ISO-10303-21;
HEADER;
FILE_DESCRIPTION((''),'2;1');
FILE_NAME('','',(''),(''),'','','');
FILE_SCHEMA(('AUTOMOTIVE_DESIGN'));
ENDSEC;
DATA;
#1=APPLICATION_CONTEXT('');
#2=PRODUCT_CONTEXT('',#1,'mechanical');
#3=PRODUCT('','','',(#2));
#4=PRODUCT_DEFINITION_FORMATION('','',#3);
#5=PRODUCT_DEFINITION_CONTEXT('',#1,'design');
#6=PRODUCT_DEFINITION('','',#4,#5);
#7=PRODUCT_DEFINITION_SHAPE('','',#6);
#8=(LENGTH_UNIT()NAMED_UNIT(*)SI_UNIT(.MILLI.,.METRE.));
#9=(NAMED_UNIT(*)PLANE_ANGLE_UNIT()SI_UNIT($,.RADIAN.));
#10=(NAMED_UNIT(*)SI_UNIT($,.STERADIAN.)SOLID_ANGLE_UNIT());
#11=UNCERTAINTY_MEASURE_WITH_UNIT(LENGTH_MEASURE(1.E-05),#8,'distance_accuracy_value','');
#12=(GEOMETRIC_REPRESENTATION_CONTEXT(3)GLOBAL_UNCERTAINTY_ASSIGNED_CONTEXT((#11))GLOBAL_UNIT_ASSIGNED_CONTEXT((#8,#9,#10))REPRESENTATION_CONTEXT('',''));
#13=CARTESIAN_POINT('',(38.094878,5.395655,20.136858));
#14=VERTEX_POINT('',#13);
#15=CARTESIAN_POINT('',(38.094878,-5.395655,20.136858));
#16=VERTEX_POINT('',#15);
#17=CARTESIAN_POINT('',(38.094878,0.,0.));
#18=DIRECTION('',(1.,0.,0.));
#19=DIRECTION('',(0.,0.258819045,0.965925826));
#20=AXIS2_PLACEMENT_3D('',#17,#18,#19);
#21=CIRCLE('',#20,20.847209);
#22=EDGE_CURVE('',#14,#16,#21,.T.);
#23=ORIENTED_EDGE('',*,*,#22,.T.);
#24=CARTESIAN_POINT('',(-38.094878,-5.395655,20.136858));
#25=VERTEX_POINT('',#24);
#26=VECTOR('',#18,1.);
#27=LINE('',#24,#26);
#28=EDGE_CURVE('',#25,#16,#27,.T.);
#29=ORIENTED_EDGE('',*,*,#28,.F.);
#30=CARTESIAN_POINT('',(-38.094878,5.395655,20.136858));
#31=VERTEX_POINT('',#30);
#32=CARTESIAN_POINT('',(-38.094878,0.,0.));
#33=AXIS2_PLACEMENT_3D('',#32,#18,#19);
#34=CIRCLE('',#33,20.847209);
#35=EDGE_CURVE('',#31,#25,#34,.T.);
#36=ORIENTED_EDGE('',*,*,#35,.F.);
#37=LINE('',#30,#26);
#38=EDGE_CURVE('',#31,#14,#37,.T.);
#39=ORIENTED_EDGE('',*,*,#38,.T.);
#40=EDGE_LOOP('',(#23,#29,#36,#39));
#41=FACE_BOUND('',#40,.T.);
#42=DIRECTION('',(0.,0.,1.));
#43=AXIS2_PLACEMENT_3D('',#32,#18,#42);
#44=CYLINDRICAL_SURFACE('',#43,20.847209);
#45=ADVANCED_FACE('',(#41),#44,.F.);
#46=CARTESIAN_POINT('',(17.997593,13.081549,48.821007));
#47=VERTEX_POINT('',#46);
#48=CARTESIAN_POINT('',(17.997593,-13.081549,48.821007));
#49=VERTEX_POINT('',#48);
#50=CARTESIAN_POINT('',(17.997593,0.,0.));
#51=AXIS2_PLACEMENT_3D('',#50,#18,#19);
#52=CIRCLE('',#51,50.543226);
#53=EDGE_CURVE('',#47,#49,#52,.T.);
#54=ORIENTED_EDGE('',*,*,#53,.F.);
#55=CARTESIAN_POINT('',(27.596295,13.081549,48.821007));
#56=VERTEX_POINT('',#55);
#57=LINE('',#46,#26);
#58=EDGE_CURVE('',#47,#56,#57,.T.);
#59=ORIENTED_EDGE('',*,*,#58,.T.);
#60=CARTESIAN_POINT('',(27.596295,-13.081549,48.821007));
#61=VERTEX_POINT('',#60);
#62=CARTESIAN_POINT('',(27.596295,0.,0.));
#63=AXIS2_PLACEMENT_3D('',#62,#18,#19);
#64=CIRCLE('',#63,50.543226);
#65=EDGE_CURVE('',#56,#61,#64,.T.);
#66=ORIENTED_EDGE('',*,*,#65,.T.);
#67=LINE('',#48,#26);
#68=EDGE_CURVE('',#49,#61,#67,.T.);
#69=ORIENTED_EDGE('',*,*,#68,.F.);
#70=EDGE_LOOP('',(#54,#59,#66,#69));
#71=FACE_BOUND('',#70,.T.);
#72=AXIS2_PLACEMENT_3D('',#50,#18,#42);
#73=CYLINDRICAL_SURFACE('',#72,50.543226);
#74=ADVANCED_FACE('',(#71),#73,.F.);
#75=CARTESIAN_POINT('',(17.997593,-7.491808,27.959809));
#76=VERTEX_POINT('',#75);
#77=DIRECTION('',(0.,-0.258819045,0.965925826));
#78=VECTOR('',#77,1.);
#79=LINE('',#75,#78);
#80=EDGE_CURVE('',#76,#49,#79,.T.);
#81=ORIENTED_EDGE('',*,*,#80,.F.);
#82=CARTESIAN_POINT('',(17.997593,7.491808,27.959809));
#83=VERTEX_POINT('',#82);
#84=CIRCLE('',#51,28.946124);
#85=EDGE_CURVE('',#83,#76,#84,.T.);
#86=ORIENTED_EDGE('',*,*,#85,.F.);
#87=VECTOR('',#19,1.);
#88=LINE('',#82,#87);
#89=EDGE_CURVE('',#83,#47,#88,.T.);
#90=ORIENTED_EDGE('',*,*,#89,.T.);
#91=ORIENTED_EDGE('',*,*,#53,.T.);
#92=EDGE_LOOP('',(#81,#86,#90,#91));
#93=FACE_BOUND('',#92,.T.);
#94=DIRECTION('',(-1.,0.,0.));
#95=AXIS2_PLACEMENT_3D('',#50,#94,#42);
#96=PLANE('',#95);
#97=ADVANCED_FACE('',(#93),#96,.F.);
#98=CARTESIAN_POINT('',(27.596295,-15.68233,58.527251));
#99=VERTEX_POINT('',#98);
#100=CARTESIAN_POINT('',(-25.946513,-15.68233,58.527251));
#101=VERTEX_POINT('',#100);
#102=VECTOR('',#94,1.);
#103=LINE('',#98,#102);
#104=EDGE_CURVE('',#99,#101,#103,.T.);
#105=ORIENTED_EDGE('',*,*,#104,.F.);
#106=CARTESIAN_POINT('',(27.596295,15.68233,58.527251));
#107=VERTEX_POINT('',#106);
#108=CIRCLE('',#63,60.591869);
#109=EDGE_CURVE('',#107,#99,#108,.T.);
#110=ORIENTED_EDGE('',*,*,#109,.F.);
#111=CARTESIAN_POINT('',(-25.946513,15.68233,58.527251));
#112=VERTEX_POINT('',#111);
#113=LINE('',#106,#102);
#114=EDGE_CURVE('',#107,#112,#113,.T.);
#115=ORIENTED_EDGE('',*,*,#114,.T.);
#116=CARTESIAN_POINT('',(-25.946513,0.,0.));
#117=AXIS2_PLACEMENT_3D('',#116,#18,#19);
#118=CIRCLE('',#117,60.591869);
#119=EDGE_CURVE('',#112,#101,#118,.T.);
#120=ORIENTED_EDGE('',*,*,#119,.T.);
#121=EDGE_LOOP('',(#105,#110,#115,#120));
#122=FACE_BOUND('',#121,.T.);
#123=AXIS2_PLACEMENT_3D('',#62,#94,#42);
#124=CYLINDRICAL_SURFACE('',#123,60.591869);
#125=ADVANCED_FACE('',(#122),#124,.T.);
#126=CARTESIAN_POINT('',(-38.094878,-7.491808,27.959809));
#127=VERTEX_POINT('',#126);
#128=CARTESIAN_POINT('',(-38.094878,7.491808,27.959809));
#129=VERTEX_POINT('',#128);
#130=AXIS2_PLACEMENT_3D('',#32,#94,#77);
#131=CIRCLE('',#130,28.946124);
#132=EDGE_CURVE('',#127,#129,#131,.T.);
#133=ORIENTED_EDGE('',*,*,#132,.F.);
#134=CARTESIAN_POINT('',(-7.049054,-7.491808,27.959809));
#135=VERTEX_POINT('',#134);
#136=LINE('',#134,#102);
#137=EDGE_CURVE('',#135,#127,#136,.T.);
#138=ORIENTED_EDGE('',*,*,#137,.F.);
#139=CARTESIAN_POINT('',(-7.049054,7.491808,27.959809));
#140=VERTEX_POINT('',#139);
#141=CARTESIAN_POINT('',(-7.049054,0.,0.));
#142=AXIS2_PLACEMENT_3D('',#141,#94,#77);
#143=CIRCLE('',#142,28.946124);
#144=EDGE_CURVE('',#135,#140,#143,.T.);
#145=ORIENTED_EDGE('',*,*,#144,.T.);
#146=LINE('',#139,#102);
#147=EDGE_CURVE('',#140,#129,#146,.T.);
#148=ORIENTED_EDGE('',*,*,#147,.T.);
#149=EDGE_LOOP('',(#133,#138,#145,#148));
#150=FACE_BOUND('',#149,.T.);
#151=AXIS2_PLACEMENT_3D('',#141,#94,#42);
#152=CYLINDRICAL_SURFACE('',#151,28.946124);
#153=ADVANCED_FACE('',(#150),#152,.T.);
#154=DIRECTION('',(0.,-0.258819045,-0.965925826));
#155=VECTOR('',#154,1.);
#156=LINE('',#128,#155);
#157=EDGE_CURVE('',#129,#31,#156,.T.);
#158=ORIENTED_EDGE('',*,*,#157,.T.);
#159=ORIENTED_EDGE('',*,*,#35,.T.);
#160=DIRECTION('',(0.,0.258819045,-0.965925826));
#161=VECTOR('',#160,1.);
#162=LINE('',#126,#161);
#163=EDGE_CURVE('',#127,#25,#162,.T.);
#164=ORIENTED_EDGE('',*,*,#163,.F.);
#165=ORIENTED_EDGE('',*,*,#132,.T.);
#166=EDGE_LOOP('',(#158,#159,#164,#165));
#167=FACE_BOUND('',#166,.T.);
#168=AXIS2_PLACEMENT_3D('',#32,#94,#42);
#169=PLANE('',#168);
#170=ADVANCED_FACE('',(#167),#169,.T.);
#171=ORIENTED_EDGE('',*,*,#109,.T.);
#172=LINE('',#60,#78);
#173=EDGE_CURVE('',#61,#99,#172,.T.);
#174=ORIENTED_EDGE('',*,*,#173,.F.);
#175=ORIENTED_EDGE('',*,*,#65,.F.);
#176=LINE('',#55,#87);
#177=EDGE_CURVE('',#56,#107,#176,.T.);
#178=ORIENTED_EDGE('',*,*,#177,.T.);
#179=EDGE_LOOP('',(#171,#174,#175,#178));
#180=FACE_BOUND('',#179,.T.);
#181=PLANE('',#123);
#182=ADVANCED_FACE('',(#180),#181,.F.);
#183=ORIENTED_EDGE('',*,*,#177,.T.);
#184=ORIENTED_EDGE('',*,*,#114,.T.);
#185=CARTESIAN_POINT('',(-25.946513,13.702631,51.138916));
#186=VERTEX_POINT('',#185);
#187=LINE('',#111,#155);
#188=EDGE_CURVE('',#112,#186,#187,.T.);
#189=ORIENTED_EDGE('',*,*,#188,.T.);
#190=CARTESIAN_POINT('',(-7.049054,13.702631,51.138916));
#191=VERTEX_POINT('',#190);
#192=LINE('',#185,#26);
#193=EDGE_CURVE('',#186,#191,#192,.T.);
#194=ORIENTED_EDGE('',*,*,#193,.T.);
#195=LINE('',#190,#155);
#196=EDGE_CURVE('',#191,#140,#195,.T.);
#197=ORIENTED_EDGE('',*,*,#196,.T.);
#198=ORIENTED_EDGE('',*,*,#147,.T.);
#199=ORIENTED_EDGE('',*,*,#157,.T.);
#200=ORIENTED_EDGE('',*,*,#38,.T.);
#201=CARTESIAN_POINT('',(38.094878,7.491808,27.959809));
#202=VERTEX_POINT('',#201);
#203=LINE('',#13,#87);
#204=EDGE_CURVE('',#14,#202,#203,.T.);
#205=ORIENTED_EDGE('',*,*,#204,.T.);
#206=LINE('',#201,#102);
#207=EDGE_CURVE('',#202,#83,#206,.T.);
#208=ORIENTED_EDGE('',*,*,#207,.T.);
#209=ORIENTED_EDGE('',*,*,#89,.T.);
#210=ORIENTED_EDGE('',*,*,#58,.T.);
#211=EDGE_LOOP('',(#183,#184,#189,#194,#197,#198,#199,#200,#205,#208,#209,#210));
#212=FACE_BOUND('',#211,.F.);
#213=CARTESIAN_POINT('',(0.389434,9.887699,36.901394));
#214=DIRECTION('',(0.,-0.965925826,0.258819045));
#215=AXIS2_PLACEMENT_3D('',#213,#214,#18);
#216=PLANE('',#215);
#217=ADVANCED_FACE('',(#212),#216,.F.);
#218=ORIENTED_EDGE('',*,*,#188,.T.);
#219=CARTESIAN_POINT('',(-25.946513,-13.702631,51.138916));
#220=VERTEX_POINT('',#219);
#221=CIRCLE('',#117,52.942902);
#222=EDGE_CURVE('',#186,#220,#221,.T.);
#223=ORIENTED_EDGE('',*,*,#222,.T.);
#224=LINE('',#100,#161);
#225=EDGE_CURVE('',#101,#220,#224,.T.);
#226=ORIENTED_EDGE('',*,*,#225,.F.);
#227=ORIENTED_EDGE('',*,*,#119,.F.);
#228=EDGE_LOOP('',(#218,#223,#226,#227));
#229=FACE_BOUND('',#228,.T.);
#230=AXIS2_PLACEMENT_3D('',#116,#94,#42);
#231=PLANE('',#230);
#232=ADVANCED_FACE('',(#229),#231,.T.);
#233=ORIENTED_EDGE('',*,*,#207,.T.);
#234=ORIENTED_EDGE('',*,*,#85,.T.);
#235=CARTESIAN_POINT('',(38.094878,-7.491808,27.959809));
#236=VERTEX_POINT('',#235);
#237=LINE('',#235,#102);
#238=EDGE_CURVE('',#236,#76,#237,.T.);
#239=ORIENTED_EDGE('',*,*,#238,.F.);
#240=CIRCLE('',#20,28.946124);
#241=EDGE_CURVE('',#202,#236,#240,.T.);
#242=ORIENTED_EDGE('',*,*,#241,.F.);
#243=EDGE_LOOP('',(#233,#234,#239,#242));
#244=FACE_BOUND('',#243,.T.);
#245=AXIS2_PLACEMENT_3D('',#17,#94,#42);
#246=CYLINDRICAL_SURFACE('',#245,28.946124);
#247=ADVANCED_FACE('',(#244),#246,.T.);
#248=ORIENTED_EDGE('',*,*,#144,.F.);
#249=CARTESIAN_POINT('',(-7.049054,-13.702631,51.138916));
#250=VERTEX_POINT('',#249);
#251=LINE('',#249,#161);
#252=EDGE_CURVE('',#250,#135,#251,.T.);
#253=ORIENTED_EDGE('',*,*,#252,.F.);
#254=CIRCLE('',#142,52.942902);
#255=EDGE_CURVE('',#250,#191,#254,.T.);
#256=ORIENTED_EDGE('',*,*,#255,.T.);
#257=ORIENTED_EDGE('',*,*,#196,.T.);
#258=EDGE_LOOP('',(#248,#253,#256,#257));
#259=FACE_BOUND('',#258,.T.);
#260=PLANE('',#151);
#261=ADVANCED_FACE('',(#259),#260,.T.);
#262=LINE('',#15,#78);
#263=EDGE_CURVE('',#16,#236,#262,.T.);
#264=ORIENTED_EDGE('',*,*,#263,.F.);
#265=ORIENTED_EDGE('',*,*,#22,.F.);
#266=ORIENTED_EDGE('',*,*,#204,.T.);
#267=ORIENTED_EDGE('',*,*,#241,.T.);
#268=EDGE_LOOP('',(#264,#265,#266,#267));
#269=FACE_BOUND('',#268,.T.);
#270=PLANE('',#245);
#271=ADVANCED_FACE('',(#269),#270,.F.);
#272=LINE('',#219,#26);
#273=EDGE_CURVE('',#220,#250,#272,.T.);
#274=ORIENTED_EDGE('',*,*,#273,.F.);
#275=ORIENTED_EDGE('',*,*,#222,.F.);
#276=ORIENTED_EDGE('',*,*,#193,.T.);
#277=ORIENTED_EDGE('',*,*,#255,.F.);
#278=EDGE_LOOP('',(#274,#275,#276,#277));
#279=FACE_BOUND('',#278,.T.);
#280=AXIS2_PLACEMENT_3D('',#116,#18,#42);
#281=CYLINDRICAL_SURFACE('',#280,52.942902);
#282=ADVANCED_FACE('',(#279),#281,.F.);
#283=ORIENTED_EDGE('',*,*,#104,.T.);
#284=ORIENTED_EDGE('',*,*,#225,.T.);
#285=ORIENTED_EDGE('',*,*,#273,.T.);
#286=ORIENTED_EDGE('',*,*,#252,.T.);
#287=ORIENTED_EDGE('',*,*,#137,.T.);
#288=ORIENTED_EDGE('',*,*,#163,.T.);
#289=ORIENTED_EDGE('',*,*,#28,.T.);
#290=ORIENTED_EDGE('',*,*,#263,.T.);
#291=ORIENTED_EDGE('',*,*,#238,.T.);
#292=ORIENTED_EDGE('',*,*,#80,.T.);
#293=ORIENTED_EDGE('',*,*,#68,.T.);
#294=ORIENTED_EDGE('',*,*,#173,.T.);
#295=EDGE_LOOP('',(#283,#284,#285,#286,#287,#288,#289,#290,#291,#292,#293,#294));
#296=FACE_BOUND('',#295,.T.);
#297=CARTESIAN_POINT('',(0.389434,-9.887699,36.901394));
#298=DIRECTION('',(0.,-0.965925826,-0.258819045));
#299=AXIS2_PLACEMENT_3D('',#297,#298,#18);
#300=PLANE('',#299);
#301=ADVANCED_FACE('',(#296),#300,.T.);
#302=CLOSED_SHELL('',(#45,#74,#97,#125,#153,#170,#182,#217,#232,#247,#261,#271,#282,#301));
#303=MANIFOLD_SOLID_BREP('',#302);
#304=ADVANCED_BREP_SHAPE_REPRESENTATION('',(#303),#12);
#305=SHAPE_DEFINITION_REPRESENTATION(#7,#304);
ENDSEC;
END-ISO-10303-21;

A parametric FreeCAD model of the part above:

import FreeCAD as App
import Part
import Sketcher

V = App.Vector


def add_polygon(sketch, points):
    """Adds a closed chain of lines whose ends are joined by coincident constraints."""
    first, n = sketch.GeometryCount, len(points)
    for a, b in zip(points, points[1:] + points[:1]):
        sketch.addGeometry(Part.LineSegment(App.Vector(*a, 0), App.Vector(*b, 0)), False)
    for i in range(n):
        sketch.addConstraint(Sketcher.Constraint("Coincident", first + i, 2, first + (i + 1) % n, 1))

doc = App.newDocument("Part")
body = doc.addObject("PartDesign::Body", "Body")

# Sketch on XZ plane
sketch1 = body.newObject("Sketcher::SketchObject", "Sketch")
sketch1.AttachmentSupport = (doc.getObject("XZ_Plane"), [""])
sketch1.MapMode = "FlatFace"
add_polygon(sketch1, [(-38, 29), (-38, 21), (38, 21), (38, 29), (18, 29), (18, 51), (28, 51), (28, 61), (-26, 61), (-26, 53), (-7, 53), (-7, 29)])  # lines 0-11
sketch1.addConstraint([
    Sketcher.Constraint("Vertical", 0),
    Sketcher.Constraint("Horizontal", 1),
    Sketcher.Constraint("Vertical", 2),
    Sketcher.Constraint("Horizontal", 3),
    Sketcher.Constraint("Vertical", 4),
    Sketcher.Constraint("Horizontal", 5),
    Sketcher.Constraint("Vertical", 6),
    Sketcher.Constraint("Horizontal", 7),
    Sketcher.Constraint("Vertical", 8),
    Sketcher.Constraint("Horizontal", 9),
    Sketcher.Constraint("Vertical", 10),
    Sketcher.Constraint("Horizontal", 11),
    Sketcher.Constraint("Symmetric", 2, 2, 11, 2, -2),
    Sketcher.Constraint("DistanceY", 4, 1, 4, 2, 21.597102),
    Sketcher.Constraint("DistanceX", 9, 1, 9, 2, 18.897459),
    Sketcher.Constraint("DistanceY", -1, 1, 8, 2, 52.942902),
    Sketcher.Constraint("DistanceX", 1, 1, 1, 2, 76.189756),
    Sketcher.Constraint("DistanceX", 3, 2, 3, 1, 20.097285),
    Sketcher.Constraint("DistanceX", 5, 1, 5, 2, 9.598702),
    Sketcher.Constraint("DistanceX", 7, 2, 7, 1, 53.542808),
    Sketcher.Constraint("DistanceY", 0, 2, 0, 1, 8.098915),
    Sketcher.Constraint("DistanceY", 6, 1, 6, 2, 10.048643),
    Sketcher.Constraint("DistanceY", 8, 2, 8, 1, 7.648967),
])
revolution = body.newObject("PartDesign::Revolution", "Revolution")
revolution.Profile = sketch1
revolution.ReferenceAxis = (sketch1, ["H_Axis"])
revolution.Angle = 15

# Sketch on XZ plane
sketch2 = body.newObject("Sketcher::SketchObject", "Sketch001")
sketch2.AttachmentSupport = (doc.getObject("XZ_Plane"), [""])
sketch2.MapMode = "FlatFace"
add_polygon(sketch2, [(-38, 29), (-38, 21), (38, 21), (38, 29), (18, 29), (18, 51), (28, 51), (28, 61), (-26, 61), (-26, 53), (-7, 53), (-7, 29)])  # lines 0-11
sketch2.addConstraint([
    Sketcher.Constraint("Vertical", 0),
    Sketcher.Constraint("Horizontal", 1),
    Sketcher.Constraint("Vertical", 2),
    Sketcher.Constraint("Horizontal", 3),
    Sketcher.Constraint("Vertical", 4),
    Sketcher.Constraint("Horizontal", 5),
    Sketcher.Constraint("Vertical", 6),
    Sketcher.Constraint("Horizontal", 7),
    Sketcher.Constraint("Vertical", 8),
    Sketcher.Constraint("Horizontal", 9),
    Sketcher.Constraint("Vertical", 10),
    Sketcher.Constraint("Horizontal", 11),
    Sketcher.Constraint("Symmetric", 2, 2, 11, 2, -2),
    Sketcher.Constraint("DistanceY", 4, 1, 4, 2, 21.597102),
    Sketcher.Constraint("DistanceX", 9, 1, 9, 2, 18.897459),
    Sketcher.Constraint("DistanceY", -1, 1, 8, 2, 52.942902),
    Sketcher.Constraint("DistanceX", 1, 1, 1, 2, 76.189756),
    Sketcher.Constraint("DistanceX", 3, 2, 3, 1, 20.097285),
    Sketcher.Constraint("DistanceX", 5, 1, 5, 2, 9.598702),
    Sketcher.Constraint("DistanceX", 7, 2, 7, 1, 53.542808),
    Sketcher.Constraint("DistanceY", 0, 2, 0, 1, 8.098915),
    Sketcher.Constraint("DistanceY", 6, 1, 6, 2, 10.048643),
    Sketcher.Constraint("DistanceY", 8, 2, 8, 1, 7.648967),
])
revolution2 = body.newObject("PartDesign::Revolution", "Revolution001")
revolution2.Profile = sketch2
revolution2.ReferenceAxis = (sketch2, ["H_Axis"])
revolution2.Angle = 15
revolution2.Reversed = True

doc.recompute()
